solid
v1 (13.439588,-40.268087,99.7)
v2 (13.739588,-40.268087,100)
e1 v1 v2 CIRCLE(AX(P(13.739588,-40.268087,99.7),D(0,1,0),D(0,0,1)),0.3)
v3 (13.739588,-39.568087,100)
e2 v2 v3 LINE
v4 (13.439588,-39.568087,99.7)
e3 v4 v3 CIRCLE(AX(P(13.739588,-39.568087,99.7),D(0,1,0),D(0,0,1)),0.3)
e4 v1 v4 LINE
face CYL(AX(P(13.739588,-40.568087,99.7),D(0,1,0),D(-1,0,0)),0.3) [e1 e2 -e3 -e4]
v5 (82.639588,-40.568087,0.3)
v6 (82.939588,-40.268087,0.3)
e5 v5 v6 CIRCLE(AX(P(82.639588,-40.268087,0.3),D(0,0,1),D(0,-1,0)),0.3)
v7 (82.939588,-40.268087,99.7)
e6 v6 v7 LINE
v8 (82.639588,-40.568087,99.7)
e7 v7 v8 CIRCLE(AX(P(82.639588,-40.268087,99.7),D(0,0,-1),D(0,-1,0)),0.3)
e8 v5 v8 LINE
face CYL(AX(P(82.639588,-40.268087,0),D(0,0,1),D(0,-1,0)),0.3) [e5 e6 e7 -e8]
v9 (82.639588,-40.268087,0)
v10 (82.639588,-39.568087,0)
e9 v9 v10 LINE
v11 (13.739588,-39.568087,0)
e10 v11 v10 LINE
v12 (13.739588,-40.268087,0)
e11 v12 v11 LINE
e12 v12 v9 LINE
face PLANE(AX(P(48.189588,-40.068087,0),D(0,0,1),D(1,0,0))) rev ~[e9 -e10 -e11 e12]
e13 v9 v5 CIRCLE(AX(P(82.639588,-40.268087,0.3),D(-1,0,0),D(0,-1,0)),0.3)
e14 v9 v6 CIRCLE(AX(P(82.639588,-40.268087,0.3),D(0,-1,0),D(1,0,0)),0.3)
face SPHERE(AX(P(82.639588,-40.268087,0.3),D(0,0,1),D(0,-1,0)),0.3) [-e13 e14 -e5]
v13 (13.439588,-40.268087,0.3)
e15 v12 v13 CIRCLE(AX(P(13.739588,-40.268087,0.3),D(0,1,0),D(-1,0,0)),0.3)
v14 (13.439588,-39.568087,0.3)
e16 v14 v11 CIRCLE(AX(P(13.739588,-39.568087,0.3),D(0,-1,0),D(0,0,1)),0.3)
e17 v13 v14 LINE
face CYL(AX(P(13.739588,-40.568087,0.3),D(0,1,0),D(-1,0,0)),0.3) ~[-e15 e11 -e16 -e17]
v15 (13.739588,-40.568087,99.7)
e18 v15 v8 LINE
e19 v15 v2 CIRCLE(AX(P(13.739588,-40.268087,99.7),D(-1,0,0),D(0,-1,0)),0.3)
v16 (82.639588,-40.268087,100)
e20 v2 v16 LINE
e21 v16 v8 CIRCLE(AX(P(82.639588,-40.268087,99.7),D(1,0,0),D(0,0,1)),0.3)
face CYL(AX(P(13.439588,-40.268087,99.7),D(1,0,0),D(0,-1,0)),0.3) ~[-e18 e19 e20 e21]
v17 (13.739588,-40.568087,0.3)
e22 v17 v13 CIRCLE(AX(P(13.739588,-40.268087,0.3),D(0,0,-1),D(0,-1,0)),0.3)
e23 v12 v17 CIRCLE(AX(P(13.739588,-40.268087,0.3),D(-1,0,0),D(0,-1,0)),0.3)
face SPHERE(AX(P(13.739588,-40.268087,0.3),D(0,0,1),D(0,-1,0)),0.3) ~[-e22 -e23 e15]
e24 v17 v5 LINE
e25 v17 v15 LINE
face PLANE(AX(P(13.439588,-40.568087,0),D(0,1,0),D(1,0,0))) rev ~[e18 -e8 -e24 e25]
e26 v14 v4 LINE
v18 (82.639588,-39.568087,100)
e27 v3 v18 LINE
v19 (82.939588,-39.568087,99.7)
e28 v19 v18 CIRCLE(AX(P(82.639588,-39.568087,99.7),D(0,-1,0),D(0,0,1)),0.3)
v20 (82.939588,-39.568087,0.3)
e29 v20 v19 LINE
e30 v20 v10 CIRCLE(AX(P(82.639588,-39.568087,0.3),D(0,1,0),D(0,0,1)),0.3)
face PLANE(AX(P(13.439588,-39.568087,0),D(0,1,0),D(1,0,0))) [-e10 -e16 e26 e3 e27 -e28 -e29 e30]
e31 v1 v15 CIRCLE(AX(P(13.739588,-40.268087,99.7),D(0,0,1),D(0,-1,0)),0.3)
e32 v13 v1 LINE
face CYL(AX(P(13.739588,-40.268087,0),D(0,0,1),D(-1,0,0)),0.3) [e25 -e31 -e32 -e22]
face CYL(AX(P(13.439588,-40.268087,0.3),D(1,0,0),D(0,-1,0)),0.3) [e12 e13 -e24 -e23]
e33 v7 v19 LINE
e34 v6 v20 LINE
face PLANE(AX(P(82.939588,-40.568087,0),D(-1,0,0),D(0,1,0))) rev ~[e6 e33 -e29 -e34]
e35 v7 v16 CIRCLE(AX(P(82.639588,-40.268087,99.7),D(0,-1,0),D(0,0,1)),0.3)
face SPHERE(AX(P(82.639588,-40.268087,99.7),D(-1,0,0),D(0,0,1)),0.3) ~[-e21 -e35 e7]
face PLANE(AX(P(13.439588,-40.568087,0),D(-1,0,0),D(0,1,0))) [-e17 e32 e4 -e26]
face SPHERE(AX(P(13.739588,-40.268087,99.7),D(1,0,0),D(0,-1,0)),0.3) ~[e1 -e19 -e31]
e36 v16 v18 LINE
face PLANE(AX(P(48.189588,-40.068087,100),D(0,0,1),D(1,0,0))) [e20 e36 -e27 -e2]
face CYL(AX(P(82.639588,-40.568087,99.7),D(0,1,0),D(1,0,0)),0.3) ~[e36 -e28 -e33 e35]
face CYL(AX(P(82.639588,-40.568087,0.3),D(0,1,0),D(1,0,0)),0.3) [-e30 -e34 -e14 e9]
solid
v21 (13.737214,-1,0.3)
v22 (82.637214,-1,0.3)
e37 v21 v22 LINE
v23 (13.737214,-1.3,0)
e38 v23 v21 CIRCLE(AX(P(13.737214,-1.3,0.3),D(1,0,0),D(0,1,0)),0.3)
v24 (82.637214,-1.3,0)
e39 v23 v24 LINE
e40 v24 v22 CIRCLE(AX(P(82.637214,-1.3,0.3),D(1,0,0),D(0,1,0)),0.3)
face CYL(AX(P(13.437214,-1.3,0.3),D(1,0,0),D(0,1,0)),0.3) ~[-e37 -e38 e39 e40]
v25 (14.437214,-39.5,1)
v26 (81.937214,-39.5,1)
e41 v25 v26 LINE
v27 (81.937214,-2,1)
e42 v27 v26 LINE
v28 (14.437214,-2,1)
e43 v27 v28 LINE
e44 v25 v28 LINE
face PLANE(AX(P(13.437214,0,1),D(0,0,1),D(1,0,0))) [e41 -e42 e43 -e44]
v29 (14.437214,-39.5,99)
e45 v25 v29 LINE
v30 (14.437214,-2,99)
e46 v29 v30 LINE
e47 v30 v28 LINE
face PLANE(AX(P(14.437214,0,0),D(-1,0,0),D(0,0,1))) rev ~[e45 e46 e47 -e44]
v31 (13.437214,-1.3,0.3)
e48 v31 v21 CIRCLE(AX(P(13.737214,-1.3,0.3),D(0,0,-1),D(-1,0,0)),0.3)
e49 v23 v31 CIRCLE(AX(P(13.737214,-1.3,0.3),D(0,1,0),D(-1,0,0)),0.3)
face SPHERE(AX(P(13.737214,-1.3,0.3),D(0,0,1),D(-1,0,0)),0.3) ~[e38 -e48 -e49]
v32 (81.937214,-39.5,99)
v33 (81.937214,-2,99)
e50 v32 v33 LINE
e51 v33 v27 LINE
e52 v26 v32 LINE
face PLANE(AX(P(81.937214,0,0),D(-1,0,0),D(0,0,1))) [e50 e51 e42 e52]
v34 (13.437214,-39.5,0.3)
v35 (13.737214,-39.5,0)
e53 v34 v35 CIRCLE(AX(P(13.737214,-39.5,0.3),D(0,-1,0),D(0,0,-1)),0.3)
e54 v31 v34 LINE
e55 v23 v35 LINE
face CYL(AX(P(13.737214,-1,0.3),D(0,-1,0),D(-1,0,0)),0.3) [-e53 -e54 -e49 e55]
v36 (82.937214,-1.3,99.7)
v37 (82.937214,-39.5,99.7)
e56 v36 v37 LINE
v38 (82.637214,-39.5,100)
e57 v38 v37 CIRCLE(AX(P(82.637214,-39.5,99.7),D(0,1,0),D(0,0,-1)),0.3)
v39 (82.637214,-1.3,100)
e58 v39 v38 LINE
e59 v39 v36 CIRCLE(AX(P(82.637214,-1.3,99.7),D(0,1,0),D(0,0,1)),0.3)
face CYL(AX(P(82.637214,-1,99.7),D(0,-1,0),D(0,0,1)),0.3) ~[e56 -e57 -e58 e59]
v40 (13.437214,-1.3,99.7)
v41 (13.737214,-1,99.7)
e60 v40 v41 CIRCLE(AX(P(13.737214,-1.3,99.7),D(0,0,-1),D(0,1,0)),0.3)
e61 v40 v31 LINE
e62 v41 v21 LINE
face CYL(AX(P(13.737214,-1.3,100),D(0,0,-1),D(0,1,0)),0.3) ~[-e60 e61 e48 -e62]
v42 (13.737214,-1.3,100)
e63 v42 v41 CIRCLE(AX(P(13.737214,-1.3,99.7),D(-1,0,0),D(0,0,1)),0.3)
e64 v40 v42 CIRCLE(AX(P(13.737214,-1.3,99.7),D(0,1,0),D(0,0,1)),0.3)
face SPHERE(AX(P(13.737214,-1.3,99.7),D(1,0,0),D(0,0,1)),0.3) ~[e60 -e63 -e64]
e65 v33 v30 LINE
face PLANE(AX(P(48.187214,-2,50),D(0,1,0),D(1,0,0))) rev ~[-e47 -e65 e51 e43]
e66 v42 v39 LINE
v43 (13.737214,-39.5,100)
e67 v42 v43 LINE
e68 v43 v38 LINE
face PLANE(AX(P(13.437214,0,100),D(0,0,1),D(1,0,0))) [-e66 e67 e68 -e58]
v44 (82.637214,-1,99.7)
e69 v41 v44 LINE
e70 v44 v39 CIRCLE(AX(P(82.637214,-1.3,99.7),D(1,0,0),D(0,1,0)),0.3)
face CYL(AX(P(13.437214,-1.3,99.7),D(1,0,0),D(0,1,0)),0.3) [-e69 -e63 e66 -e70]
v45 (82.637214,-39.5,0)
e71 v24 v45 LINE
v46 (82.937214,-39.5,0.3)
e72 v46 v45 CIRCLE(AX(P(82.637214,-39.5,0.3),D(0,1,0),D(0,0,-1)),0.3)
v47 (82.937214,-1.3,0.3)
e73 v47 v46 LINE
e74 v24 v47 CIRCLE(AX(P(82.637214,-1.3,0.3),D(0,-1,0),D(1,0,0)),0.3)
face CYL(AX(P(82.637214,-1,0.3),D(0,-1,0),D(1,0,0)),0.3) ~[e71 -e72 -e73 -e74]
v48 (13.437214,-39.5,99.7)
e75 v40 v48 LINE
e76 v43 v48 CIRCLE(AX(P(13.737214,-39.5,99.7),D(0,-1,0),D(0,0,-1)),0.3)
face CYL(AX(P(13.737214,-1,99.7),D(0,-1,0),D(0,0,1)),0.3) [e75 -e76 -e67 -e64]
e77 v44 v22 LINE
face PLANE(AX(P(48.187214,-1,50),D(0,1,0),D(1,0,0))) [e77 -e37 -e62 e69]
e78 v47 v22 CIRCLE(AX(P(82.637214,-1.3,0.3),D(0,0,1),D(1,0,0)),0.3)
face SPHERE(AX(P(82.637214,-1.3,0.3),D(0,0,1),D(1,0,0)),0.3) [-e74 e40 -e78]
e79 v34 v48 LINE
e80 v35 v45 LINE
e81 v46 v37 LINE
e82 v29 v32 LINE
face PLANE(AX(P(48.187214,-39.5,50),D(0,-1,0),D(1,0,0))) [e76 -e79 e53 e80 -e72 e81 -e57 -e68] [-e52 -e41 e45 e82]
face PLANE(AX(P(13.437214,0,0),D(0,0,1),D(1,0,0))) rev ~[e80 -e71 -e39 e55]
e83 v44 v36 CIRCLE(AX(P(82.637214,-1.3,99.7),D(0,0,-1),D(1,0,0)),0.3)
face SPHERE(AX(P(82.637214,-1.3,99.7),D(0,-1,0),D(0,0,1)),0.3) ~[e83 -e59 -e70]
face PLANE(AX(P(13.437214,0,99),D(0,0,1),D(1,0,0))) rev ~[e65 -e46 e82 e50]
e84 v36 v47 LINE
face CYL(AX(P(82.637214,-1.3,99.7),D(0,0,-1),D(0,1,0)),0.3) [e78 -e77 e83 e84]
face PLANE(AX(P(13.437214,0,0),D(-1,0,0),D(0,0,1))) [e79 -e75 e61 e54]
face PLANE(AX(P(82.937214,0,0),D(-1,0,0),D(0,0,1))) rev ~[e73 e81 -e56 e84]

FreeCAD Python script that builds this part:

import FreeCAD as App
import Part
import Sketcher

V = App.Vector


def edges_at(feature, points):
    """Names of the edges that pass closest to the given points."""
    edges = feature.Shape.Edges
    near = lambda p: min(range(len(edges)), key=lambda i: edges[i].distToShape(Part.Vertex(*p))[0])
    return sorted({f"Edge{near(p) + 1}" for p in points})


def faces_at(feature, points):
    """Names of the faces that lie closest to the given points."""
    faces = feature.Shape.Faces
    near = lambda p: min(range(len(faces)), key=lambda i: faces[i].distToShape(Part.Vertex(*p))[0])
    return sorted({f"Face{near(p) + 1}" for p in points})

doc = App.newDocument("Part")
body = doc.addObject("PartDesign::Body", "Body")

# Sketch on XZ plane
sketch1 = body.newObject("Sketcher::SketchObject", "Sketch")
sketch1.AttachmentSupport = (doc.getObject("XZ_Plane"), [""])
sketch1.MapMode = "FlatFace"
sketch1.addGeometry([
    Part.LineSegment(V(13, 100, 0), V(13, 0, 0)),
    Part.LineSegment(V(13, 0, 0), V(83, 0, 0)),
    Part.LineSegment(V(83, 0, 0), V(83, 100, 0)),
    Part.LineSegment(V(83, 100, 0), V(13, 100, 0)),
], False)
sketch1.addConstraint([
    Sketcher.Constraint("Coincident", 0, 2, 1, 1),
    Sketcher.Constraint("Coincident", 1, 2, 2, 1),
    Sketcher.Constraint("Coincident", 2, 2, 3, 1),
    Sketcher.Constraint("Coincident", 3, 2, 0, 1),
    Sketcher.Constraint("Vertical", 0),
    Sketcher.Constraint("Horizontal", 1),
    Sketcher.Constraint("Vertical", 2),
    Sketcher.Constraint("Horizontal", 3),
    Sketcher.Constraint("PointOnObject", 0, 2, -1),
    Sketcher.Constraint("DistanceY", 0, 2, 0, 1, 100.0),
    Sketcher.Constraint("DistanceX", 1, 1, 1, 2, 69.5),
    Sketcher.Constraint("DistanceX", -1, 1, 0, 2, 13.437214),
])
pad1 = body.newObject("PartDesign::Pad", "Pad")
pad1.Profile = sketch1
pad1.Length = 39.5

# Sketch on XZ plane
sketch2 = body.newObject("Sketcher::SketchObject", "Sketch001")
sketch2.AttachmentSupport = (doc.getObject("XZ_Plane"), [""])
sketch2.MapMode = "FlatFace"
sketch2.addGeometry([
    Part.LineSegment(V(13, 0, 0), V(13, 100, 0)),
    Part.LineSegment(V(13, 100, 0), V(83, 100, 0)),
    Part.LineSegment(V(83, 100, 0), V(83, 0, 0)),
    Part.LineSegment(V(83, 0, 0), V(13, 0, 0)),
], False)
sketch2.addConstraint([
    Sketcher.Constraint("Coincident", 0, 2, 1, 1),
    Sketcher.Constraint("Coincident", 1, 2, 2, 1),
    Sketcher.Constraint("Coincident", 2, 2, 3, 1),
    Sketcher.Constraint("Coincident", 3, 2, 0, 1),
    Sketcher.Constraint("Vertical", 0),
    Sketcher.Constraint("Horizontal", 1),
    Sketcher.Constraint("Vertical", 2),
    Sketcher.Constraint("Horizontal", 3),
    Sketcher.Constraint("PointOnObject", 2, 2, -1),
    Sketcher.Constraint("DistanceY", 0, 1, 0, 2, 100.0),
    Sketcher.Constraint("DistanceX", 1, 1, 1, 2, 69.5),
    Sketcher.Constraint("DistanceX", -1, 1, 0, 2, 13.437214),
])
pocket1 = body.newObject("PartDesign::Pocket", "Pocket")
pocket1.Profile = sketch2
pocket1.Length = 1
pocket1.Reversed = True
doc.recompute()

thickness = body.newObject("PartDesign::Thickness", "Thickness")
thickness.Base = (pocket1, faces_at(pocket1, [(48.187, -39.5, 50)]))
thickness.Value = 1
thickness.Reversed = True
thickness.Join = "Arc"
doc.recompute()

fillet = body.newObject("PartDesign::Fillet", "Fillet")
fillet.Base = (thickness, edges_at(thickness, [(82.937, -20.25, 100)]))
fillet.Radius = 0.3
doc.recompute()

fillet2 = body.newObject("PartDesign::Fillet", "Fillet001")
fillet2.Base = (fillet, edges_at(fillet, [
    (48.037, -1, 100),
    (13.437, -20.25, 100),
    (13.437, -1, 50),
    (82.937, -20.25, 0),
    (13.437, -20.25, 0),
    (48.187, -1, 0),
    (82.937, -1, 49.85),
]))
fillet2.Radius = 0.3
body2 = doc.addObject("PartDesign::Body", "Body001")

# Sketch on XY plane
sketch3 = body2.newObject("Sketcher::SketchObject", "Sketch002")
sketch3.AttachmentSupport = (doc.getObject("XY_Plane001"), [""])
sketch3.MapMode = "FlatFace"
sketch3.addGeometry([
    Part.LineSegment(V(13.4, -39.6, 0), V(13.4, -40.6, 0)),
    Part.LineSegment(V(13.4, -40.6, 0), V(82.9, -40.6, 0)),
    Part.LineSegment(V(82.9, -40.6, 0), V(82.9, -39.6, 0)),
    Part.LineSegment(V(82.9, -39.6, 0), V(13.4, -39.6, 0)),
], False)
sketch3.addConstraint([
    Sketcher.Constraint("Coincident", 0, 2, 1, 1),
    Sketcher.Constraint("Coincident", 1, 2, 2, 1),
    Sketcher.Constraint("Coincident", 2, 2, 3, 1),
    Sketcher.Constraint("Coincident", 3, 2, 0, 1),
    Sketcher.Constraint("Vertical", 0),
    Sketcher.Constraint("Horizontal", 1),
    Sketcher.Constraint("Vertical", 2),
    Sketcher.Constraint("Horizontal", 3),
    Sketcher.Constraint("DistanceY", 0, 2, 0, 1, 1.0),
    Sketcher.Constraint("DistanceX", 1, 1, 1, 2, 69.5),
    Sketcher.Constraint("DistanceX", -1, 1, 1, 2, 82.939588),
    Sketcher.Constraint("DistanceY", 0, 2, -1, 1, 40.568087),
])
pad2 = body2.newObject("PartDesign::Pad", "Pad001")
pad2.Profile = sketch3
pad2.Length = 100
doc.recompute()

fillet3 = body2.newObject("PartDesign::Fillet", "Fillet002")
fillet3.Base = (pad2, edges_at(pad2, [
    (48.19, -40.568, 100),
    (13.44, -40.568, 50),
    (13.44, -40.068, 100),
    (82.94, -40.068, 100),
    (82.94, -40.568, 50),
    (48.19, -40.568, 0),
    (82.94, -40.068, 0),
    (13.44, -40.068, 0),
]))
fillet3.Radius = 0.3

doc.recompute()
